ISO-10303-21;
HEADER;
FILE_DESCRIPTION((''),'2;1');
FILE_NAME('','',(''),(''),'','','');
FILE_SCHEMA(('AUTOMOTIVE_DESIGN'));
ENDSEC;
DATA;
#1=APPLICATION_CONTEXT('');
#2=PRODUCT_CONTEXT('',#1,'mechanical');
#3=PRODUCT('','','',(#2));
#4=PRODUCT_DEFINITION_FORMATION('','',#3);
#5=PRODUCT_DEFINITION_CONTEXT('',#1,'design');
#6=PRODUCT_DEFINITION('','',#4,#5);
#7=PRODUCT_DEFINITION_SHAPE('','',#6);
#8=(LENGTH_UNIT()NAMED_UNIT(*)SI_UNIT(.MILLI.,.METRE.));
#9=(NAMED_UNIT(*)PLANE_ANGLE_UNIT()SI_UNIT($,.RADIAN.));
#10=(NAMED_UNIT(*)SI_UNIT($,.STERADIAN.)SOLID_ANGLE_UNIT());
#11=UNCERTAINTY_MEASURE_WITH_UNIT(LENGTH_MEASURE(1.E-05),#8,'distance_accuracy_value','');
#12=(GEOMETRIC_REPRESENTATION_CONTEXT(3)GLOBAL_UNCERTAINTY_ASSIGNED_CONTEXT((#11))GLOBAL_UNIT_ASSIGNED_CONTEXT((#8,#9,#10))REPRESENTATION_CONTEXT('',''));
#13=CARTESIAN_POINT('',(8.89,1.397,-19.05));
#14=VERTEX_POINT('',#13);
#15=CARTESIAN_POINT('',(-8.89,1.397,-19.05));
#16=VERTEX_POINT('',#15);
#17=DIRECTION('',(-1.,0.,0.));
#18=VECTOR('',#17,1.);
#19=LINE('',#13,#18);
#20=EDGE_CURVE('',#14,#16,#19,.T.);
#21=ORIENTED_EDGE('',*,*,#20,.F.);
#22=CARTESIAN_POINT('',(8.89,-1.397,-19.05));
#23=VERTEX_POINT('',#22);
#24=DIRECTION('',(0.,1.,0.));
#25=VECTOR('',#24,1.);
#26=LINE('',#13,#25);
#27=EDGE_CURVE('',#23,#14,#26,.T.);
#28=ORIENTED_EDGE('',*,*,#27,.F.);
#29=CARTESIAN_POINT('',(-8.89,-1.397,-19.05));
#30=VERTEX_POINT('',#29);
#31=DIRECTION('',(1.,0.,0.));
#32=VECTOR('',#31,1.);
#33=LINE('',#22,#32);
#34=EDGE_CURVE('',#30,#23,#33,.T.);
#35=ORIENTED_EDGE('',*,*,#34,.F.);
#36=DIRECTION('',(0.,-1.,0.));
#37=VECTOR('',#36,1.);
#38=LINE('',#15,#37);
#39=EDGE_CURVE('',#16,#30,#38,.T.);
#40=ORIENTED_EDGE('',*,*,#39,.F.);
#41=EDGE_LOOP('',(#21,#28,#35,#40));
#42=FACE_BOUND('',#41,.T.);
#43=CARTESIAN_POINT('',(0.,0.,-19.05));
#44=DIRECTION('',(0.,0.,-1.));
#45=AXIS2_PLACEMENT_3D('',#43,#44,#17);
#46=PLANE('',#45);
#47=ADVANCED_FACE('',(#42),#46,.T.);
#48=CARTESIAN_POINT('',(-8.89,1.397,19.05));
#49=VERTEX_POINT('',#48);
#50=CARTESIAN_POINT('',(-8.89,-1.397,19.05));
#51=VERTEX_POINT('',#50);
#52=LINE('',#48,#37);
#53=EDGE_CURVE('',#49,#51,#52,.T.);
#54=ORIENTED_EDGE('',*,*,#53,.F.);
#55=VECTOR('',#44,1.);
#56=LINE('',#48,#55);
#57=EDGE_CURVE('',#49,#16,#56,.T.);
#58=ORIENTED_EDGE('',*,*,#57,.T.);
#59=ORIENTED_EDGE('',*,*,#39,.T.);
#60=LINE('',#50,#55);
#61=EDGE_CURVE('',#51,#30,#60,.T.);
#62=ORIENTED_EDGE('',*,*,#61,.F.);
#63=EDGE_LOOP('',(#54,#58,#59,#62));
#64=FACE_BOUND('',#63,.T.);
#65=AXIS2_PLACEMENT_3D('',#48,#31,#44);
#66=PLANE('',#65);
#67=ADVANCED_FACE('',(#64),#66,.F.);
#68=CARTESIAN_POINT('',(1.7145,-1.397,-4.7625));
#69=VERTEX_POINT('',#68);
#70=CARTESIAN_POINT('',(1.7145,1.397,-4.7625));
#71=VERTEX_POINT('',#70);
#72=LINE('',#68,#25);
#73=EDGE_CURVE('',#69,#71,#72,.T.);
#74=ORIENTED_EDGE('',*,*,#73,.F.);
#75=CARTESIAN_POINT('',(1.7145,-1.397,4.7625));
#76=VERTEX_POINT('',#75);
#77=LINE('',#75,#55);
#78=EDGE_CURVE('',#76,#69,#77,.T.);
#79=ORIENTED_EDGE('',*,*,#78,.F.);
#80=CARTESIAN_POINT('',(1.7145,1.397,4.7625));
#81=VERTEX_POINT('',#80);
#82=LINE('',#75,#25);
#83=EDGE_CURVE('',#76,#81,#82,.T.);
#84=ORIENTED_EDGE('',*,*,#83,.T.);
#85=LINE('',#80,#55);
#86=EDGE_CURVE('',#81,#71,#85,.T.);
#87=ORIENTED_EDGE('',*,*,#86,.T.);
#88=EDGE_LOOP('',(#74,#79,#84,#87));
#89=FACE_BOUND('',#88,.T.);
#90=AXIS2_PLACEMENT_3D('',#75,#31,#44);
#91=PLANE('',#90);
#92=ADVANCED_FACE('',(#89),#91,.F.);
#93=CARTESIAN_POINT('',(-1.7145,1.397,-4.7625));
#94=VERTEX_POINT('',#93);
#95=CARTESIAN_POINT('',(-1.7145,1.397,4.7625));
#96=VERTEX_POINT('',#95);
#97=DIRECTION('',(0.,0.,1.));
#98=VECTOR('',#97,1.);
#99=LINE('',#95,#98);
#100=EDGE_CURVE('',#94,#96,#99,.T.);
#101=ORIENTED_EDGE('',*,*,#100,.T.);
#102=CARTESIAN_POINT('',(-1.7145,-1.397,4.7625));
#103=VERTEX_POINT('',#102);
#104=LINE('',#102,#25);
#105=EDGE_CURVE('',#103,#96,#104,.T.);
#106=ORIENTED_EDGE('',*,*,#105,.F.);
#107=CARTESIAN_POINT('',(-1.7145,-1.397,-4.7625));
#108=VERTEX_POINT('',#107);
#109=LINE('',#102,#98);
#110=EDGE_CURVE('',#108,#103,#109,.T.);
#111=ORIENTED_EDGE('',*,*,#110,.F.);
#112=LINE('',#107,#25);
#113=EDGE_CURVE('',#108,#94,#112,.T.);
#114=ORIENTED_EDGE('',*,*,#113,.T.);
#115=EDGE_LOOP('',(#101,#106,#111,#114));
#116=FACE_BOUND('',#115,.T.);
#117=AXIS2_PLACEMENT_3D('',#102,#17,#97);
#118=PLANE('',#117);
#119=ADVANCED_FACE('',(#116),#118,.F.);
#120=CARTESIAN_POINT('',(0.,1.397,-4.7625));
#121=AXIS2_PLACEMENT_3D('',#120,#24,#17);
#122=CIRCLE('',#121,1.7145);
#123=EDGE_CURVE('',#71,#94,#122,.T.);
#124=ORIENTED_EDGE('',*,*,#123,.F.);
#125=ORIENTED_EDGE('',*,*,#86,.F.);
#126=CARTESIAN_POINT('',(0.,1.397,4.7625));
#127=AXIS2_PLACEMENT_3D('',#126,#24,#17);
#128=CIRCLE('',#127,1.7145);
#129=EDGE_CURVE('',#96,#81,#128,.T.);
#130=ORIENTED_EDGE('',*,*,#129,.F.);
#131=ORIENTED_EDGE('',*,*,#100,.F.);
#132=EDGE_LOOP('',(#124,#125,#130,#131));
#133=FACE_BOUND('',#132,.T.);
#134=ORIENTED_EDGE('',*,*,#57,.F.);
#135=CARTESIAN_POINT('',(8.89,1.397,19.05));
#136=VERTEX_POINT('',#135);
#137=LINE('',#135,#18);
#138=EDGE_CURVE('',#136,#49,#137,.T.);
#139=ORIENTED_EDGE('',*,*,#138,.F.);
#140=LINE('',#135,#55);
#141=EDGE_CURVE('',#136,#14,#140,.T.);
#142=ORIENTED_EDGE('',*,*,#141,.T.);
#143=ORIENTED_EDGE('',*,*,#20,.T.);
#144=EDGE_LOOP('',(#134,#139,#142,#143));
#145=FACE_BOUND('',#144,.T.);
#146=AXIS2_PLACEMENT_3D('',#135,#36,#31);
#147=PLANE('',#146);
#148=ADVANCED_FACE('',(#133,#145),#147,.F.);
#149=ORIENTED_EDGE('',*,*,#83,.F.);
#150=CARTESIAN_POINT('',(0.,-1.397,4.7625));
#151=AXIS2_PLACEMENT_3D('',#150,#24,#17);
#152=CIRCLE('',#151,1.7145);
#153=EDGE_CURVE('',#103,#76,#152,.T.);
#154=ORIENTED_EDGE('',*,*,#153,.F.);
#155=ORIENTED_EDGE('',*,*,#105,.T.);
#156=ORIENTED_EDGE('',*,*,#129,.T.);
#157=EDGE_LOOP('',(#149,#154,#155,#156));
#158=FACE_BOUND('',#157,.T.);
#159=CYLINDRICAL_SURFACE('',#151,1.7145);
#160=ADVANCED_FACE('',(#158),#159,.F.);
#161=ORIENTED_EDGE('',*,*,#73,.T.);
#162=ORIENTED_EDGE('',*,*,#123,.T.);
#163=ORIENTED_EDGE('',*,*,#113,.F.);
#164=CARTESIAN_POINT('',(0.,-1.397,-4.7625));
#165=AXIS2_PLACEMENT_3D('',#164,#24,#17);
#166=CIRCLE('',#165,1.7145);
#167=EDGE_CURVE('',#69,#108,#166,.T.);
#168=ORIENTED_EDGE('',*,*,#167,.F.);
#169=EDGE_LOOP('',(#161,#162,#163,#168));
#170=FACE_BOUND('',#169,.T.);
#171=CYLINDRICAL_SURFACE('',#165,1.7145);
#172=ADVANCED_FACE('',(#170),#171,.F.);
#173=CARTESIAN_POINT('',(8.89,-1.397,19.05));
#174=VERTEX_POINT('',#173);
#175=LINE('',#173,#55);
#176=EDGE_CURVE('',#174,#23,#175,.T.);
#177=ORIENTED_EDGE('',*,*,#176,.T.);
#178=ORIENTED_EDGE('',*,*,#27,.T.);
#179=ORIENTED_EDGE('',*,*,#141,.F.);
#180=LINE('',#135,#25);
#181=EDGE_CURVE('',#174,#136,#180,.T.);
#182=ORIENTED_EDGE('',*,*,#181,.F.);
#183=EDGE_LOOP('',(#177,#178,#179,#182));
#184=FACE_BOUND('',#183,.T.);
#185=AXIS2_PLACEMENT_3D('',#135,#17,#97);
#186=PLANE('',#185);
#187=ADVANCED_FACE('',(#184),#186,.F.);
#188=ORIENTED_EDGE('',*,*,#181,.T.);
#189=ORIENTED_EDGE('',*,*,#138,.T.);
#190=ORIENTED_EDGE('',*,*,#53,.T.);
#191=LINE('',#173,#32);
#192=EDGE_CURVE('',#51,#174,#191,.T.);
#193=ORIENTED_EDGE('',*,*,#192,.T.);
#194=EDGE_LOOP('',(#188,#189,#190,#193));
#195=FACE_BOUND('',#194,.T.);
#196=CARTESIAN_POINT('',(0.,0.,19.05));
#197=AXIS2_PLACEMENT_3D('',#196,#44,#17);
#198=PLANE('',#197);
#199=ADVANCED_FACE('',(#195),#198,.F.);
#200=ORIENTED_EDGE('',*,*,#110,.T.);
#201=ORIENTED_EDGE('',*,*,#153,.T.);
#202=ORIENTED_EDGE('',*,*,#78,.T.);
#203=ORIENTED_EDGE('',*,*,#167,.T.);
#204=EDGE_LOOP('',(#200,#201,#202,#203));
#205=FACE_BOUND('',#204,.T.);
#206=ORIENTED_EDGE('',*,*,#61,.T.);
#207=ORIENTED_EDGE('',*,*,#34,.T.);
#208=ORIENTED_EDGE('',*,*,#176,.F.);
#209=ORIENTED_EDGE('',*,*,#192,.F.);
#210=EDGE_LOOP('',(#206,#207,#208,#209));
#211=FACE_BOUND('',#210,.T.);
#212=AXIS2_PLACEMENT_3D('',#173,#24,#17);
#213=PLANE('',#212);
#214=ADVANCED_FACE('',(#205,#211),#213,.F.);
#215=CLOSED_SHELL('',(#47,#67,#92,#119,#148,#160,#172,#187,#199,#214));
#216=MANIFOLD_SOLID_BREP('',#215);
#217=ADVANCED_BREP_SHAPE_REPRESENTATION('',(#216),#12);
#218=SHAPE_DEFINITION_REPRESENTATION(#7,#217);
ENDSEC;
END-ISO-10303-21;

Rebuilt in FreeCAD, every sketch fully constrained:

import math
import FreeCAD as App
import Part
import Sketcher
Q = App.Units.Quantity


def add_polygon(sketch, points):
    """Adds a closed chain of lines whose ends are joined by coincident constraints."""
    first, n = sketch.GeometryCount, len(points)
    for a, b in zip(points, points[1:] + points[:1]):
        sketch.addGeometry(Part.LineSegment(App.Vector(*a, 0), App.Vector(*b, 0)), False)
    for i in range(n):
        sketch.addConstraint(Sketcher.Constraint("Coincident", first + i, 2, first + (i + 1) % n, 1))

doc = App.newDocument("Part")
body = doc.addObject("PartDesign::Body", "Body")

# Sketch on XY plane
sketch1 = body.newObject("Sketcher::SketchObject", "Sketch")
sketch1.AttachmentSupport = (doc.getObject("XY_Plane"), [""])
sketch1.MapMode = "FlatFace"
add_polygon(sketch1, [(-8.9, 1.4), (-8.9, -1.4), (8.9, -1.4), (8.9, 1.4)])  # lines 0-3
sketch1.addConstraint(Sketcher.Constraint("Vertical", 0))
sketch1.addConstraint(Sketcher.Constraint("Horizontal", 1))
sketch1.addConstraint(Sketcher.Constraint("Vertical", 2))
sketch1.addConstraint(Sketcher.Constraint("Horizontal", 3))
sketch1.addConstraint(Sketcher.Constraint("Symmetric", 0, 2, 2, 2, -1, 1))
sketch1.addConstraint(Sketcher.Constraint("DistanceX", 1, 1, 1, 2, Q("0.7 in")))
sketch1.addConstraint(Sketcher.Constraint("DistanceY", 0, 2, 0, 1, Q("0.11 in")))
pad1 = body.newObject("PartDesign::Pad", "Pad")
pad1.Profile = sketch1
pad1.Length = Q("1.5 in")
pad1.Midplane = True

# Sketch on XZ plane
sketch2 = body.newObject("Sketcher::SketchObject", "Sketch001")
sketch2.AttachmentSupport = (doc.getObject("XZ_Plane"), [""])
sketch2.MapMode = "FlatFace"
sketch2.AttachmentOffset = App.Placement(App.Vector(0, 0, -0.055 * 25.4), App.Rotation())
sketch2.addGeometry(Part.LineSegment(App.Vector(-1.7, -4.8, 0), App.Vector(-1.7, 4.8, 0)), False)
sketch2.addGeometry(Part.ArcOfCircle(Part.Circle(App.Vector(0, 4.8, 0), App.Vector(0, 0, 1), 1.7), math.radians(0), math.radians(180)), False)
sketch2.addGeometry(Part.LineSegment(App.Vector(1.7, 4.8, 0), App.Vector(1.7, -4.8, 0)), False)
sketch2.addGeometry(Part.ArcOfCircle(Part.Circle(App.Vector(0, -4.8, 0), App.Vector(0, 0, 1), 1.7), math.radians(180), math.radians(360)), False)
sketch2.addConstraint(Sketcher.Constraint("Tangent", 0, 2, 1, 2))
sketch2.addConstraint(Sketcher.Constraint("Tangent", 1, 1, 2, 1))
sketch2.addConstraint(Sketcher.Constraint("Tangent", 2, 2, 3, 2))
sketch2.addConstraint(Sketcher.Constraint("Tangent", 3, 1, 0, 1))
sketch2.addConstraint(Sketcher.Constraint("Vertical", 0))
sketch2.addConstraint(Sketcher.Constraint("Vertical", 2))
sketch2.addConstraint(Sketcher.Constraint("Symmetric", 1, 3, 3, 3, -1, 1))
sketch2.addConstraint(Sketcher.Constraint("Radius", 1, Q("0.0675 in")))
sketch2.addConstraint(Sketcher.Constraint("DistanceY", 0, 1, 0, 2, Q("0.375 in")))
pocket1 = body.newObject("PartDesign::Pocket", "Pocket")
pocket1.Profile = sketch2
pocket1.Type = "ThroughAll"
pocket1.Reversed = True

doc.recompute()
